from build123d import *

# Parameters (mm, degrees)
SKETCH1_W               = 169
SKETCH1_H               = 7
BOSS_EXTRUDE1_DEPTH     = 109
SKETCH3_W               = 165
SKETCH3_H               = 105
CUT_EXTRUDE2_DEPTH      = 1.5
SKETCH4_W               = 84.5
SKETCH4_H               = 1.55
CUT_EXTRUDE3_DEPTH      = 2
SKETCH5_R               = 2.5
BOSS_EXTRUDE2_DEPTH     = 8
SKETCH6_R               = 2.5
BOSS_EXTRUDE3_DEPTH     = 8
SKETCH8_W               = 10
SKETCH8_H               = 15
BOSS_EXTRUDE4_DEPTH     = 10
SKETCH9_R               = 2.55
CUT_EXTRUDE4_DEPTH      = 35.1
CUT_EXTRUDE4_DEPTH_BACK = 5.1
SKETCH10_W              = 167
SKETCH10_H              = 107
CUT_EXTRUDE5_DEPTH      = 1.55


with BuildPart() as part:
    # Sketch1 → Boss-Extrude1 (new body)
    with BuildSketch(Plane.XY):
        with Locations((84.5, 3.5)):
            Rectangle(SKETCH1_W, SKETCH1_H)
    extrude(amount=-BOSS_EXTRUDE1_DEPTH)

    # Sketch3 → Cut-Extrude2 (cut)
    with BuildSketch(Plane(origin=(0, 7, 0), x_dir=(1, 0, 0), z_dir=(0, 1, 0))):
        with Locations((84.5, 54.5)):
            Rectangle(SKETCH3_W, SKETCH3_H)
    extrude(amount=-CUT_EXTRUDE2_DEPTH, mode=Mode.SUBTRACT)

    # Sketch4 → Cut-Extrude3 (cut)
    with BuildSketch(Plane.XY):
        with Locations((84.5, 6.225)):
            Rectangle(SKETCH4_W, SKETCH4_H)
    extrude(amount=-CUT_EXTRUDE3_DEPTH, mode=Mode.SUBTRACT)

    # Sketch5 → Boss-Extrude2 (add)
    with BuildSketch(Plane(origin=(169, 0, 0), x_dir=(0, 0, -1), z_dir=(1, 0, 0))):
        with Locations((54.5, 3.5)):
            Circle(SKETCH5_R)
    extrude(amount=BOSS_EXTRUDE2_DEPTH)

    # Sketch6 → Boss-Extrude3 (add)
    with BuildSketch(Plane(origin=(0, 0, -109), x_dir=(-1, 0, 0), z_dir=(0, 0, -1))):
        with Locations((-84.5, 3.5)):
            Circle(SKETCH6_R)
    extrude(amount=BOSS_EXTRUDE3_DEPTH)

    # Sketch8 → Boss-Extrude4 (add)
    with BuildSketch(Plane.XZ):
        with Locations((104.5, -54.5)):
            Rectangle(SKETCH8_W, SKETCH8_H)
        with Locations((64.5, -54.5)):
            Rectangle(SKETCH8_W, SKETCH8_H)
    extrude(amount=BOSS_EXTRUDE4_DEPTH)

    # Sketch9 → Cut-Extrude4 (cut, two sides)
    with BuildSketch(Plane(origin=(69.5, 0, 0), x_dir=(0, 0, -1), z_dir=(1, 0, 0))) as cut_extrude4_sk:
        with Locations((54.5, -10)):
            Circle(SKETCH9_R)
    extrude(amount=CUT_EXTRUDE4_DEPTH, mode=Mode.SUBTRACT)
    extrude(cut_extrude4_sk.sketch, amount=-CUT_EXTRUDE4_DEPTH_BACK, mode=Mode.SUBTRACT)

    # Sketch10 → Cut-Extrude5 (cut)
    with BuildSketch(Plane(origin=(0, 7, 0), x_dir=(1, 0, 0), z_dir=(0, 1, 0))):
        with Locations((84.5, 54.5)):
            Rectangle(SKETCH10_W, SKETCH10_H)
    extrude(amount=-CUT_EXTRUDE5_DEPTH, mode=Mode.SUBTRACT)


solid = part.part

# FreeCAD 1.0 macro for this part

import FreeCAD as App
import Part
import Sketcher
from FreeCAD import Vector

doc = App.newDocument("Part")
body = doc.addObject("PartDesign::Body", "Body")

# Sketch on XY plane
sketch1 = body.newObject("Sketcher::SketchObject", "Sketch")
sketch1.AttachmentSupport = (doc.getObject("XY_Plane"), [""])
sketch1.MapMode = "FlatFace"
sketch1.addGeometry(Part.LineSegment(Vector(0, 7, 0), Vector(0, 0, 0)), False)
sketch1.addGeometry(Part.LineSegment(Vector(0, 0, 0), Vector(169, 0, 0)), False)
sketch1.addGeometry(Part.LineSegment(Vector(169, 0, 0), Vector(169, 7, 0)), False)
sketch1.addGeometry(Part.LineSegment(Vector(169, 7, 0), Vector(0, 7, 0)), False)
sketch1.addConstraint(Sketcher.Constraint("Coincident", 0, 2, 1, 1))
sketch1.addConstraint(Sketcher.Constraint("Coincident", 1, 2, 2, 1))
sketch1.addConstraint(Sketcher.Constraint("Coincident", 2, 2, 3, 1))
sketch1.addConstraint(Sketcher.Constraint("Coincident", 3, 2, 0, 1))
sketch1.addConstraint(Sketcher.Constraint("Vertical", 0))
sketch1.addConstraint(Sketcher.Constraint("Horizontal", 1))
sketch1.addConstraint(Sketcher.Constraint("Vertical", 2))
sketch1.addConstraint(Sketcher.Constraint("Horizontal", 3))
sketch1.addConstraint(Sketcher.Constraint("Coincident", 0, 2, -1, 1))
sketch1.addConstraint(Sketcher.Constraint("DistanceX", 1, 1, 1, 2, 169.0))
sketch1.addConstraint(Sketcher.Constraint("DistanceY", 0, 2, 0, 1, 7.0))
pad1 = body.newObject("PartDesign::Pad", "Pad")
pad1.Profile = sketch1
pad1.Length = 109
pad1.Reversed = True

# Sketch on XZ plane
sketch2 = body.newObject("Sketcher::SketchObject", "Sketch001")
sketch2.AttachmentSupport = (doc.getObject("XZ_Plane"), [""])
sketch2.MapMode = "FlatFace"
sketch2.AttachmentOffset = App.Placement(Vector(0, 0, -7), App.Rotation())
sketch2.addGeometry(Part.LineSegment(Vector(2, -107, 0), Vector(2, -2, 0)), False)
sketch2.addGeometry(Part.LineSegment(Vector(2, -2, 0), Vector(167, -2, 0)), False)
sketch2.addGeometry(Part.LineSegment(Vector(167, -2, 0), Vector(167, -107, 0)), False)
sketch2.addGeometry(Part.LineSegment(Vector(167, -107, 0), Vector(2, -107, 0)), False)
sketch2.addConstraint(Sketcher.Constraint("Coincident", 0, 2, 1, 1))
sketch2.addConstraint(Sketcher.Constraint("Coincident", 1, 2, 2, 1))
sketch2.addConstraint(Sketcher.Constraint("Coincident", 2, 2, 3, 1))
sketch2.addConstraint(Sketcher.Constraint("Coincident", 3, 2, 0, 1))
sketch2.addConstraint(Sketcher.Constraint("Vertical", 0))
sketch2.addConstraint(Sketcher.Constraint("Horizontal", 1))
sketch2.addConstraint(Sketcher.Constraint("Vertical", 2))
sketch2.addConstraint(Sketcher.Constraint("Horizontal", 3))
sketch2.addConstraint(Sketcher.Constraint("DistanceX", 1, 1, 1, 2, 165.0))
sketch2.addConstraint(Sketcher.Constraint("DistanceY", 0, 1, 0, 2, 105.0))
sketch2.addConstraint(Sketcher.Constraint("DistanceX", -1, 1, 0, 2, 2.0))
sketch2.addConstraint(Sketcher.Constraint("DistanceY", 0, 2, -1, 1, 2.0))
pocket1 = body.newObject("PartDesign::Pocket", "Pocket")
pocket1.Profile = sketch2
pocket1.Length = 1.5
pocket1.Reversed = True

# Sketch on XY plane
sketch3 = body.newObject("Sketcher::SketchObject", "Sketch002")
sketch3.AttachmentSupport = (doc.getObject("XY_Plane"), [""])
sketch3.MapMode = "FlatFace"
sketch3.addGeometry(Part.LineSegment(Vector(42.2, 7, 0), Vector(42.2, 5.5, 0)), False)
sketch3.addGeometry(Part.LineSegment(Vector(42.2, 5.5, 0), Vector(126.8, 5.5, 0)), False)
sketch3.addGeometry(Part.LineSegment(Vector(126.8, 5.5, 0), Vector(126.8, 7, 0)), False)
sketch3.addGeometry(Part.LineSegment(Vector(126.8, 7, 0), Vector(42.2, 7, 0)), False)
sketch3.addConstraint(Sketcher.Constraint("Coincident", 0, 2, 1, 1))
sketch3.addConstraint(Sketcher.Constraint("Coincident", 1, 2, 2, 1))
sketch3.addConstraint(Sketcher.Constraint("Coincident", 2, 2, 3, 1))
sketch3.addConstraint(Sketcher.Constraint("Coincident", 3, 2, 0, 1))
sketch3.addConstraint(Sketcher.Constraint("Vertical", 0))
sketch3.addConstraint(Sketcher.Constraint("Horizontal", 1))
sketch3.addConstraint(Sketcher.Constraint("Vertical", 2))
sketch3.addConstraint(Sketcher.Constraint("Horizontal", 3))
sketch3.addConstraint(Sketcher.Constraint("DistanceX", 1, 1, 1, 2, 84.5))
sketch3.addConstraint(Sketcher.Constraint("DistanceY", -1, 1, 2, 2, 7.0))
sketch3.addConstraint(Sketcher.Constraint("DistanceY", 0, 2, 0, 1, 1.55))
sketch3.addConstraint(Sketcher.Constraint("DistanceX", -1, 1, 0, 2, 42.25))
pocket2 = body.newObject("PartDesign::Pocket", "Pocket001")
pocket2.Profile = sketch3
pocket2.Length = 2

# Sketch on YZ plane
sketch4 = body.newObject("Sketcher::SketchObject", "Sketch003")
sketch4.AttachmentSupport = (doc.getObject("YZ_Plane"), [""])
sketch4.MapMode = "FlatFace"
sketch4.AttachmentOffset = App.Placement(Vector(0, 0, 169), App.Rotation())
sketch4.addGeometry(Part.Circle(Vector(3.5, -54.5, 0), Vector(0, 0, 1), 2.5), False)
sketch4.addConstraint(Sketcher.Constraint("Diameter", 0, 5.0))
sketch4.addConstraint(Sketcher.Constraint("DistanceX", -1, 1, 0, 3, 3.5))
sketch4.addConstraint(Sketcher.Constraint("DistanceY", 0, 3, -1, 1, 54.5))
pad2 = body.newObject("PartDesign::Pad", "Pad001")
pad2.Profile = sketch4
pad2.Length = 8

# Sketch on XY plane
sketch5 = body.newObject("Sketcher::SketchObject", "Sketch004")
sketch5.AttachmentSupport = (doc.getObject("XY_Plane"), [""])
sketch5.MapMode = "FlatFace"
sketch5.AttachmentOffset = App.Placement(Vector(0, 0, -109), App.Rotation())
sketch5.addGeometry(Part.Circle(Vector(84.5, 3.5, 0), Vector(0, 0, 1), 2.5), False)
sketch5.addConstraint(Sketcher.Constraint("Diameter", 0, 5.0))
sketch5.addConstraint(Sketcher.Constraint("DistanceX", -1, 1, 0, 3, 84.5))
sketch5.addConstraint(Sketcher.Constraint("DistanceY", -1, 1, 0, 3, 3.5))
pad3 = body.newObject("PartDesign::Pad", "Pad002")
pad3.Profile = sketch5
pad3.Length = 8
pad3.Reversed = True

# Sketch on XZ plane
sketch6 = body.newObject("Sketcher::SketchObject", "Sketch005")
sketch6.AttachmentSupport = (doc.getObject("XZ_Plane"), [""])
sketch6.MapMode = "FlatFace"
sketch6.addGeometry(Part.LineSegment(Vector(100, -47, 0), Vector(100, -62, 0)), False)
sketch6.addGeometry(Part.LineSegment(Vector(100, -62, 0), Vector(110, -62, 0)), False)
sketch6.addGeometry(Part.LineSegment(Vector(110, -62, 0), Vector(110, -47, 0)), False)
sketch6.addGeometry(Part.LineSegment(Vector(110, -47, 0), Vector(100, -47, 0)), False)
sketch6.addGeometry(Part.LineSegment(Vector(60, -47, 0), Vector(60, -62, 0)), False)
sketch6.addGeometry(Part.LineSegment(Vector(60, -62, 0), Vector(70, -62, 0)), False)
sketch6.addGeometry(Part.LineSegment(Vector(70, -62, 0), Vector(70, -47, 0)), False)
sketch6.addGeometry(Part.LineSegment(Vector(70, -47, 0), Vector(60, -47, 0)), False)
sketch6.addConstraint(Sketcher.Constraint("Coincident", 0, 2, 1, 1))
sketch6.addConstraint(Sketcher.Constraint("Coincident", 1, 2, 2, 1))
sketch6.addConstraint(Sketcher.Constraint("Coincident", 2, 2, 3, 1))
sketch6.addConstraint(Sketcher.Constraint("Coincident", 3, 2, 0, 1))
sketch6.addConstraint(Sketcher.Constraint("Coincident", 4, 2, 5, 1))
sketch6.addConstraint(Sketcher.Constraint("Coincident", 5, 2, 6, 1))
sketch6.addConstraint(Sketcher.Constraint("Coincident", 6, 2, 7, 1))
sketch6.addConstraint(Sketcher.Constraint("Coincident", 7, 2, 4, 1))
sketch6.addConstraint(Sketcher.Constraint("Vertical", 0))
sketch6.addConstraint(Sketcher.Constraint("Horizontal", 1))
sketch6.addConstraint(Sketcher.Constraint("Vertical", 2))
sketch6.addConstraint(Sketcher.Constraint("Horizontal", 3))
sketch6.addConstraint(Sketcher.Constraint("Vertical", 4))
sketch6.addConstraint(Sketcher.Constraint("Horizontal", 5))
sketch6.addConstraint(Sketcher.Constraint("Vertical", 6))
sketch6.addConstraint(Sketcher.Constraint("Horizontal", 7))
sketch6.addConstraint(Sketcher.Constraint("Horizontal", 1, 2, 4, 2))
sketch6.addConstraint(Sketcher.Constraint("Horizontal", 3, 2, 6, 2))
sketch6.addConstraint(Sketcher.Constraint("Equal", 3, 5))
sketch6.addConstraint(Sketcher.Constraint("DistanceX", 1, 1, 1, 2, 10.0))
sketch6.addConstraint(Sketcher.Constraint("DistanceY", 0, 2, 0, 1, 15.0))
sketch6.addConstraint(Sketcher.Constraint("DistanceY", 0, 2, -1, 1, 62.0))
sketch6.addConstraint(Sketcher.Constraint("DistanceX", 4, 2, 0, 2, 40.0))
sketch6.addConstraint(Sketcher.Constraint("DistanceX", -1, 1, 0, 2, 99.5))
pad4 = body.newObject("PartDesign::Pad", "Pad003")
pad4.Profile = sketch6
pad4.Length = 10

# Sketch on YZ plane
sketch7 = body.newObject("Sketcher::SketchObject", "Sketch006")
sketch7.AttachmentSupport = (doc.getObject("YZ_Plane"), [""])
sketch7.MapMode = "FlatFace"
sketch7.AttachmentOffset = App.Placement(Vector(0, 0, 69.5), App.Rotation())
sketch7.addGeometry(Part.Circle(Vector(-10, -54.5, 0), Vector(0, 0, 1), 2.5), False)
sketch7.addConstraint(Sketcher.Constraint("Diameter", 0, 5.1))
sketch7.addConstraint(Sketcher.Constraint("DistanceX", 0, 3, -1, 1, 10.0))
sketch7.addConstraint(Sketcher.Constraint("DistanceY", 0, 3, -1, 1, 54.5))
pocket3 = body.newObject("PartDesign::Pocket", "Pocket002")
pocket3.Profile = sketch7
pocket3.Type = "TwoLengths"
pocket3.Length = 35.1
pocket3.Length2 = 5.1
pocket3.Reversed = True

# Sketch on XZ plane
sketch8 = body.newObject("Sketcher::SketchObject", "Sketch007")
sketch8.AttachmentSupport = (doc.getObject("XZ_Plane"), [""])
sketch8.MapMode = "FlatFace"
sketch8.AttachmentOffset = App.Placement(Vector(0, 0, -7), App.Rotation())
sketch8.addGeometry(Part.LineSegment(Vector(1, -108, 0), Vector(1, -1, 0)), False)
sketch8.addGeometry(Part.LineSegment(Vector(1, -1, 0), Vector(168, -1, 0)), False)
sketch8.addGeometry(Part.LineSegment(Vector(168, -1, 0), Vector(168, -108, 0)), False)
sketch8.addGeometry(Part.LineSegment(Vector(168, -108, 0), Vector(1, -108, 0)), False)
sketch8.addConstraint(Sketcher.Constraint("Coincident", 0, 2, 1, 1))
sketch8.addConstraint(Sketcher.Constraint("Coincident", 1, 2, 2, 1))
sketch8.addConstraint(Sketcher.Constraint("Coincident", 2, 2, 3, 1))
sketch8.addConstraint(Sketcher.Constraint("Coincident", 3, 2, 0, 1))
sketch8.addConstraint(Sketcher.Constraint("Vertical", 0))
sketch8.addConstraint(Sketcher.Constraint("Horizontal", 1))
sketch8.addConstraint(Sketcher.Constraint("Vertical", 2))
sketch8.addConstraint(Sketcher.Constraint("Horizontal", 3))
sketch8.addConstraint(Sketcher.Constraint("DistanceX", 1, 1, 1, 2, 167.0))
sketch8.addConstraint(Sketcher.Constraint("DistanceY", 0, 1, 0, 2, 107.0))
sketch8.addConstraint(Sketcher.Constraint("DistanceX", -1, 1, 0, 2, 1.0))
sketch8.addConstraint(Sketcher.Constraint("DistanceY", 0, 2, -1, 1, 1.0))
pocket4 = body.newObject("PartDesign::Pocket", "Pocket003")
pocket4.Profile = sketch8
pocket4.Length = 1.55
pocket4.Reversed = True

doc.recompute()
